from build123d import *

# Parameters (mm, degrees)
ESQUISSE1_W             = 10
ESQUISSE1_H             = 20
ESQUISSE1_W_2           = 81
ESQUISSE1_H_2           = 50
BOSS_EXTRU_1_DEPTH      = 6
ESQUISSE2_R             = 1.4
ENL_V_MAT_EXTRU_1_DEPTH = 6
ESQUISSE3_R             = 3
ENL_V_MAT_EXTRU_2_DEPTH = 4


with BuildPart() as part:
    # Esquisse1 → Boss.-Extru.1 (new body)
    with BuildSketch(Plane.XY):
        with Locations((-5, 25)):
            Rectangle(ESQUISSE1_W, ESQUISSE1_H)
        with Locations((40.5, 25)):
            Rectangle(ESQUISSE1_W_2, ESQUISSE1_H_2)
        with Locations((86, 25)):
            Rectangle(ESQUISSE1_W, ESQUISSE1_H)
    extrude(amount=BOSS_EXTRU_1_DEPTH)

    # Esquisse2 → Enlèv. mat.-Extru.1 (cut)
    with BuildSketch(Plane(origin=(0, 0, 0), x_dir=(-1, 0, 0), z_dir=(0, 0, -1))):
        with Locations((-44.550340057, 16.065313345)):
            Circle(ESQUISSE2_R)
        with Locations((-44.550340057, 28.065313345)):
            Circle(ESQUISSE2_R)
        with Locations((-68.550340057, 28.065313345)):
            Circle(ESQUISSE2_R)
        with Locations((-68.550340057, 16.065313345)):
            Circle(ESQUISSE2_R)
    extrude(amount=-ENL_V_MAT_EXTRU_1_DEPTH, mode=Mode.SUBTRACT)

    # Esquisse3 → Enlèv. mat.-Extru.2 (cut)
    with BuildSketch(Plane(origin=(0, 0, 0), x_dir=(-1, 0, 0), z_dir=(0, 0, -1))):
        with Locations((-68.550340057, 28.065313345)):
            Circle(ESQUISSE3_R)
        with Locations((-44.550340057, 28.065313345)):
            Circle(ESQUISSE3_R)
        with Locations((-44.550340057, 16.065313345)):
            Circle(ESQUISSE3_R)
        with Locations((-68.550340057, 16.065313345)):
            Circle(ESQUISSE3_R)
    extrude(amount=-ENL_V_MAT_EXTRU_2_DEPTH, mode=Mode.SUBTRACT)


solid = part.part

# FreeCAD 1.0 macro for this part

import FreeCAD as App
import Part
import Sketcher

V = App.Vector


def add_polygon(sketch, points):
    """Adds a closed chain of lines whose ends are joined by coincident constraints."""
    first, n = sketch.GeometryCount, len(points)
    for a, b in zip(points, points[1:] + points[:1]):
        sketch.addGeometry(Part.LineSegment(App.Vector(*a, 0), App.Vector(*b, 0)), False)
    for i in range(n):
        sketch.addConstraint(Sketcher.Constraint("Coincident", first + i, 2, first + (i + 1) % n, 1))

doc = App.newDocument("Part")
body = doc.addObject("PartDesign::Body", "Body")

sketch1 = body.newObject("Sketcher::SketchObject", "Sketch")
sketch1.AttachmentSupport = (doc.getObject("XY_Plane"), [""])
sketch1.MapMode = "FlatFace"
add_polygon(sketch1, [(-10, 35), (-10, 15), (0, 15), (0, 0), (81, 0), (81, 15), (91, 15), (91, 35), (81, 35), (81, 50), (0, 50), (0, 35)])
sketch1.addConstraint([
    Sketcher.Constraint("Vertical", 0),
    Sketcher.Constraint("Horizontal", 1),
    Sketcher.Constraint("Vertical", 2),
    Sketcher.Constraint("Horizontal", 3),
    Sketcher.Constraint("Vertical", 4),
    Sketcher.Constraint("Horizontal", 5),
    Sketcher.Constraint("Vertical", 6),
    Sketcher.Constraint("Horizontal", 7),
    Sketcher.Constraint("Vertical", 8),
    Sketcher.Constraint("Horizontal", 9),
    Sketcher.Constraint("Vertical", 10),
    Sketcher.Constraint("Horizontal", 11),
    Sketcher.Constraint("Coincident", 2, 2, -1, 1),
    Sketcher.Constraint("PointOnObject", 9, 2, -2),
    Sketcher.Constraint("Horizontal", 1, 2, 4, 2),
    Sketcher.Constraint("Horizontal", 7, 2, 10, 2),
    Sketcher.Constraint("Vertical", 4, 2, 7, 2),
    Sketcher.Constraint("Equal", 1, 5),
    Sketcher.Constraint("Equal", 4, 8),
    Sketcher.Constraint("DistanceX", 1, 1, 1, 2, 10.0),
    Sketcher.Constraint("DistanceX", 3, 1, 3, 2, 81.0),
    Sketcher.Constraint("DistanceY", 0, 2, 0, 1, 20.0),
    Sketcher.Constraint("DistanceY", 2, 2, 2, 1, 15.0),
])
pad1 = body.newObject("PartDesign::Pad", "Pad")
pad1.Profile = sketch1
pad1.Length = 6

sketch2 = body.newObject("Sketcher::SketchObject", "Sketch001")
sketch2.AttachmentSupport = (doc.getObject("XY_Plane"), [""])
sketch2.MapMode = "FlatFace"
sketch2.addGeometry([
    Part.Circle(V(44.6, 16.1, 0), V(0, 0, 1), 1.4),
    Part.Circle(V(44.6, 28.1, 0), V(0, 0, 1), 1.4),
    Part.Circle(V(68.6, 28.1, 0), V(0, 0, 1), 1.4),
    Part.Circle(V(68.6, 16.1, 0), V(0, 0, 1), 1.4),
], False)
sketch2.addConstraint([
    Sketcher.Constraint("Equal", 0, 1),
    Sketcher.Constraint("Equal", 1, 2),
    Sketcher.Constraint("Equal", 2, 3),
    Sketcher.Constraint("Horizontal", 1, 3, 2, 3),
    Sketcher.Constraint("Horizontal", 0, 3, 3, 3),
    Sketcher.Constraint("Vertical", 0, 3, 1, 3),
    Sketcher.Constraint("Vertical", 2, 3, 3, 3),
    Sketcher.Constraint("Diameter", 0, 2.8),
    Sketcher.Constraint("DistanceY", 0, 3, 1, 3, 12.0),
    Sketcher.Constraint("DistanceX", 1, 3, 2, 3, 24.0),
    Sketcher.Constraint("DistanceX", -1, 1, 0, 3, 44.55034),
    Sketcher.Constraint("DistanceY", -1, 1, 0, 3, 16.065313),
])
pocket1 = body.newObject("PartDesign::Pocket", "Pocket")
pocket1.Profile = sketch2
pocket1.Length = 6
pocket1.Reversed = True

sketch3 = body.newObject("Sketcher::SketchObject", "Sketch002")
sketch3.AttachmentSupport = (doc.getObject("XY_Plane"), [""])
sketch3.MapMode = "FlatFace"
sketch3.addGeometry([
    Part.Circle(V(68.6, 28.1, 0), V(0, 0, 1), 3),
    Part.Circle(V(44.6, 28.1, 0), V(0, 0, 1), 3),
    Part.Circle(V(44.6, 16.1, 0), V(0, 0, 1), 3),
    Part.Circle(V(68.6, 16.1, 0), V(0, 0, 1), 3),
], False)
sketch3.addConstraint([
    Sketcher.Constraint("Equal", 0, 1),
    Sketcher.Constraint("Equal", 1, 2),
    Sketcher.Constraint("Equal", 2, 3),
    Sketcher.Constraint("Horizontal", 0, 3, 1, 3),
    Sketcher.Constraint("Horizontal", 2, 3, 3, 3),
    Sketcher.Constraint("Vertical", 1, 3, 2, 3),
    Sketcher.Constraint("Vertical", 0, 3, 3, 3),
    Sketcher.Constraint("Diameter", 0, 6.0),
    Sketcher.Constraint("DistanceX", 1, 3, 0, 3, 24.0),
    Sketcher.Constraint("DistanceY", 2, 3, 1, 3, 12.0),
    Sketcher.Constraint("DistanceX", -1, 1, 0, 3, 68.55034),
    Sketcher.Constraint("DistanceY", -1, 1, 0, 3, 28.065313),
])
pocket2 = body.newObject("PartDesign::Pocket", "Pocket001")
pocket2.Profile = sketch3
pocket2.Length = 4
pocket2.Reversed = True

doc.recompute()
